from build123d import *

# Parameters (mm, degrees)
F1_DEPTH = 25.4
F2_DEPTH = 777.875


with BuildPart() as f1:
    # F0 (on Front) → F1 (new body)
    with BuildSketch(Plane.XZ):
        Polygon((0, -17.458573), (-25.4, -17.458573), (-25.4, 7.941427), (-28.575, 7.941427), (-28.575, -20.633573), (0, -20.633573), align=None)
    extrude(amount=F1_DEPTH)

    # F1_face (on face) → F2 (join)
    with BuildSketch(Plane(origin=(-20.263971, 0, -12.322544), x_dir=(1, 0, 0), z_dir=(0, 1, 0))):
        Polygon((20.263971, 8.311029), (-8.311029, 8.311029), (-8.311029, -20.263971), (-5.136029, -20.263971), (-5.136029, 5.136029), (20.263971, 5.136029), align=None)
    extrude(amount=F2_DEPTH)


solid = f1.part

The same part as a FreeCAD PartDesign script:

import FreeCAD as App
import Part
import Sketcher
Q = App.Units.Quantity

doc = App.newDocument("Part")
body = doc.addObject("PartDesign::Body", "Body")

# Sketch on XZ plane
sketch1 = doc.addObject("Sketcher::SketchObject", "Sketch")
body.addObject(sketch1)
sketch1.AttachmentSupport = (doc.XZ_Plane, [""])
sketch1.MapMode = "FlatFace"
sketch1.addGeometry([
    Part.LineSegment(App.Vector(0, -17.5, 0), App.Vector(-25.4, -17.5, 0)),  # 0
    Part.LineSegment(App.Vector(-25.4, -17.5, 0), App.Vector(-25.4, 7.9, 0)),  # 1
    Part.LineSegment(App.Vector(-25.4, 7.9, 0), App.Vector(-28.6, 7.9, 0)),  # 2
    Part.LineSegment(App.Vector(-28.6, 7.9, 0), App.Vector(-28.6, -20.6, 0)),  # 3
    Part.LineSegment(App.Vector(-28.6, -20.6, 0), App.Vector(0, -20.6, 0)),  # 4
    Part.LineSegment(App.Vector(0, -20.6, 0), App.Vector(0, -17.5, 0)),  # 5
], False)
sketch1.addConstraint([
    Sketcher.Constraint("Coincident", 0, 2, 1, 1),
    Sketcher.Constraint("Coincident", 1, 2, 2, 1),
    Sketcher.Constraint("Coincident", 2, 2, 3, 1),
    Sketcher.Constraint("Coincident", 3, 2, 4, 1),
    Sketcher.Constraint("Coincident", 4, 2, 5, 1),
    Sketcher.Constraint("Coincident", 5, 2, 0, 1),
    Sketcher.Constraint("Horizontal", 0),
    Sketcher.Constraint("Vertical", 1),
    Sketcher.Constraint("Horizontal", 2),
    Sketcher.Constraint("Vertical", 3),
    Sketcher.Constraint("Horizontal", 4),
    Sketcher.Constraint("Vertical", 5),
    Sketcher.Constraint("PointOnObject", 4, 2, -2),
    Sketcher.Constraint("Equal", 0, 1),
    Sketcher.Constraint("Equal", 4, 3),
    Sketcher.Constraint("DistanceX", 0, 2, 0, 1, Q("1 in")),
    Sketcher.Constraint("DistanceX", 2, 2, 2, 1, Q("0.125 in")),
    Sketcher.Constraint("DistanceY", 0, 2, -1, 1, Q("17.458573 mm")),
])
pad1 = doc.addObject("PartDesign::Pad", "Pad")
body.addObject(pad1)
pad1.Profile = sketch1
pad1.Length = Q("1 in")

# Sketch on XZ plane
sketch2 = doc.addObject("Sketcher::SketchObject", "Sketch001")
body.addObject(sketch2)
sketch2.AttachmentSupport = (doc.XZ_Plane, [""])
sketch2.MapMode = "FlatFace"
sketch2.addGeometry([
    Part.LineSegment(App.Vector(0, -20.6, 0), App.Vector(-28.6, -20.6, 0)),  # 0
    Part.LineSegment(App.Vector(-28.6, -20.6, 0), App.Vector(-28.6, 7.9, 0)),  # 1
    Part.LineSegment(App.Vector(-28.6, 7.9, 0), App.Vector(-25.4, 7.9, 0)),  # 2
    Part.LineSegment(App.Vector(-25.4, 7.9, 0), App.Vector(-25.4, -17.5, 0)),  # 3
    Part.LineSegment(App.Vector(-25.4, -17.5, 0), App.Vector(0, -17.5, 0)),  # 4
    Part.LineSegment(App.Vector(0, -17.5, 0), App.Vector(0, -20.6, 0)),  # 5
], False)
sketch2.addConstraint([
    Sketcher.Constraint("Coincident", 0, 2, 1, 1),
    Sketcher.Constraint("Coincident", 1, 2, 2, 1),
    Sketcher.Constraint("Coincident", 2, 2, 3, 1),
    Sketcher.Constraint("Coincident", 3, 2, 4, 1),
    Sketcher.Constraint("Coincident", 4, 2, 5, 1),
    Sketcher.Constraint("Coincident", 5, 2, 0, 1),
    Sketcher.Constraint("Horizontal", 0),
    Sketcher.Constraint("Vertical", 1),
    Sketcher.Constraint("Horizontal", 2),
    Sketcher.Constraint("Vertical", 3),
    Sketcher.Constraint("Horizontal", 4),
    Sketcher.Constraint("Vertical", 5),
    Sketcher.Constraint("PointOnObject", 4, 2, -2),
    Sketcher.Constraint("Equal", 0, 1),
    Sketcher.Constraint("Equal", 4, 3),
    Sketcher.Constraint("DistanceX", 4, 1, 4, 2, Q("1 in")),
    Sketcher.Constraint("DistanceX", 0, 2, 0, 1, Q("1.125 in")),
    Sketcher.Constraint("DistanceY", 0, 2, -1, 1, Q("20.633573 mm")),
])
pad2 = doc.addObject("PartDesign::Pad", "Pad001")
body.addObject(pad2)
pad2.Profile = sketch2
pad2.Length = Q("30.625 in")
pad2.Reversed = True

doc.recompute()
